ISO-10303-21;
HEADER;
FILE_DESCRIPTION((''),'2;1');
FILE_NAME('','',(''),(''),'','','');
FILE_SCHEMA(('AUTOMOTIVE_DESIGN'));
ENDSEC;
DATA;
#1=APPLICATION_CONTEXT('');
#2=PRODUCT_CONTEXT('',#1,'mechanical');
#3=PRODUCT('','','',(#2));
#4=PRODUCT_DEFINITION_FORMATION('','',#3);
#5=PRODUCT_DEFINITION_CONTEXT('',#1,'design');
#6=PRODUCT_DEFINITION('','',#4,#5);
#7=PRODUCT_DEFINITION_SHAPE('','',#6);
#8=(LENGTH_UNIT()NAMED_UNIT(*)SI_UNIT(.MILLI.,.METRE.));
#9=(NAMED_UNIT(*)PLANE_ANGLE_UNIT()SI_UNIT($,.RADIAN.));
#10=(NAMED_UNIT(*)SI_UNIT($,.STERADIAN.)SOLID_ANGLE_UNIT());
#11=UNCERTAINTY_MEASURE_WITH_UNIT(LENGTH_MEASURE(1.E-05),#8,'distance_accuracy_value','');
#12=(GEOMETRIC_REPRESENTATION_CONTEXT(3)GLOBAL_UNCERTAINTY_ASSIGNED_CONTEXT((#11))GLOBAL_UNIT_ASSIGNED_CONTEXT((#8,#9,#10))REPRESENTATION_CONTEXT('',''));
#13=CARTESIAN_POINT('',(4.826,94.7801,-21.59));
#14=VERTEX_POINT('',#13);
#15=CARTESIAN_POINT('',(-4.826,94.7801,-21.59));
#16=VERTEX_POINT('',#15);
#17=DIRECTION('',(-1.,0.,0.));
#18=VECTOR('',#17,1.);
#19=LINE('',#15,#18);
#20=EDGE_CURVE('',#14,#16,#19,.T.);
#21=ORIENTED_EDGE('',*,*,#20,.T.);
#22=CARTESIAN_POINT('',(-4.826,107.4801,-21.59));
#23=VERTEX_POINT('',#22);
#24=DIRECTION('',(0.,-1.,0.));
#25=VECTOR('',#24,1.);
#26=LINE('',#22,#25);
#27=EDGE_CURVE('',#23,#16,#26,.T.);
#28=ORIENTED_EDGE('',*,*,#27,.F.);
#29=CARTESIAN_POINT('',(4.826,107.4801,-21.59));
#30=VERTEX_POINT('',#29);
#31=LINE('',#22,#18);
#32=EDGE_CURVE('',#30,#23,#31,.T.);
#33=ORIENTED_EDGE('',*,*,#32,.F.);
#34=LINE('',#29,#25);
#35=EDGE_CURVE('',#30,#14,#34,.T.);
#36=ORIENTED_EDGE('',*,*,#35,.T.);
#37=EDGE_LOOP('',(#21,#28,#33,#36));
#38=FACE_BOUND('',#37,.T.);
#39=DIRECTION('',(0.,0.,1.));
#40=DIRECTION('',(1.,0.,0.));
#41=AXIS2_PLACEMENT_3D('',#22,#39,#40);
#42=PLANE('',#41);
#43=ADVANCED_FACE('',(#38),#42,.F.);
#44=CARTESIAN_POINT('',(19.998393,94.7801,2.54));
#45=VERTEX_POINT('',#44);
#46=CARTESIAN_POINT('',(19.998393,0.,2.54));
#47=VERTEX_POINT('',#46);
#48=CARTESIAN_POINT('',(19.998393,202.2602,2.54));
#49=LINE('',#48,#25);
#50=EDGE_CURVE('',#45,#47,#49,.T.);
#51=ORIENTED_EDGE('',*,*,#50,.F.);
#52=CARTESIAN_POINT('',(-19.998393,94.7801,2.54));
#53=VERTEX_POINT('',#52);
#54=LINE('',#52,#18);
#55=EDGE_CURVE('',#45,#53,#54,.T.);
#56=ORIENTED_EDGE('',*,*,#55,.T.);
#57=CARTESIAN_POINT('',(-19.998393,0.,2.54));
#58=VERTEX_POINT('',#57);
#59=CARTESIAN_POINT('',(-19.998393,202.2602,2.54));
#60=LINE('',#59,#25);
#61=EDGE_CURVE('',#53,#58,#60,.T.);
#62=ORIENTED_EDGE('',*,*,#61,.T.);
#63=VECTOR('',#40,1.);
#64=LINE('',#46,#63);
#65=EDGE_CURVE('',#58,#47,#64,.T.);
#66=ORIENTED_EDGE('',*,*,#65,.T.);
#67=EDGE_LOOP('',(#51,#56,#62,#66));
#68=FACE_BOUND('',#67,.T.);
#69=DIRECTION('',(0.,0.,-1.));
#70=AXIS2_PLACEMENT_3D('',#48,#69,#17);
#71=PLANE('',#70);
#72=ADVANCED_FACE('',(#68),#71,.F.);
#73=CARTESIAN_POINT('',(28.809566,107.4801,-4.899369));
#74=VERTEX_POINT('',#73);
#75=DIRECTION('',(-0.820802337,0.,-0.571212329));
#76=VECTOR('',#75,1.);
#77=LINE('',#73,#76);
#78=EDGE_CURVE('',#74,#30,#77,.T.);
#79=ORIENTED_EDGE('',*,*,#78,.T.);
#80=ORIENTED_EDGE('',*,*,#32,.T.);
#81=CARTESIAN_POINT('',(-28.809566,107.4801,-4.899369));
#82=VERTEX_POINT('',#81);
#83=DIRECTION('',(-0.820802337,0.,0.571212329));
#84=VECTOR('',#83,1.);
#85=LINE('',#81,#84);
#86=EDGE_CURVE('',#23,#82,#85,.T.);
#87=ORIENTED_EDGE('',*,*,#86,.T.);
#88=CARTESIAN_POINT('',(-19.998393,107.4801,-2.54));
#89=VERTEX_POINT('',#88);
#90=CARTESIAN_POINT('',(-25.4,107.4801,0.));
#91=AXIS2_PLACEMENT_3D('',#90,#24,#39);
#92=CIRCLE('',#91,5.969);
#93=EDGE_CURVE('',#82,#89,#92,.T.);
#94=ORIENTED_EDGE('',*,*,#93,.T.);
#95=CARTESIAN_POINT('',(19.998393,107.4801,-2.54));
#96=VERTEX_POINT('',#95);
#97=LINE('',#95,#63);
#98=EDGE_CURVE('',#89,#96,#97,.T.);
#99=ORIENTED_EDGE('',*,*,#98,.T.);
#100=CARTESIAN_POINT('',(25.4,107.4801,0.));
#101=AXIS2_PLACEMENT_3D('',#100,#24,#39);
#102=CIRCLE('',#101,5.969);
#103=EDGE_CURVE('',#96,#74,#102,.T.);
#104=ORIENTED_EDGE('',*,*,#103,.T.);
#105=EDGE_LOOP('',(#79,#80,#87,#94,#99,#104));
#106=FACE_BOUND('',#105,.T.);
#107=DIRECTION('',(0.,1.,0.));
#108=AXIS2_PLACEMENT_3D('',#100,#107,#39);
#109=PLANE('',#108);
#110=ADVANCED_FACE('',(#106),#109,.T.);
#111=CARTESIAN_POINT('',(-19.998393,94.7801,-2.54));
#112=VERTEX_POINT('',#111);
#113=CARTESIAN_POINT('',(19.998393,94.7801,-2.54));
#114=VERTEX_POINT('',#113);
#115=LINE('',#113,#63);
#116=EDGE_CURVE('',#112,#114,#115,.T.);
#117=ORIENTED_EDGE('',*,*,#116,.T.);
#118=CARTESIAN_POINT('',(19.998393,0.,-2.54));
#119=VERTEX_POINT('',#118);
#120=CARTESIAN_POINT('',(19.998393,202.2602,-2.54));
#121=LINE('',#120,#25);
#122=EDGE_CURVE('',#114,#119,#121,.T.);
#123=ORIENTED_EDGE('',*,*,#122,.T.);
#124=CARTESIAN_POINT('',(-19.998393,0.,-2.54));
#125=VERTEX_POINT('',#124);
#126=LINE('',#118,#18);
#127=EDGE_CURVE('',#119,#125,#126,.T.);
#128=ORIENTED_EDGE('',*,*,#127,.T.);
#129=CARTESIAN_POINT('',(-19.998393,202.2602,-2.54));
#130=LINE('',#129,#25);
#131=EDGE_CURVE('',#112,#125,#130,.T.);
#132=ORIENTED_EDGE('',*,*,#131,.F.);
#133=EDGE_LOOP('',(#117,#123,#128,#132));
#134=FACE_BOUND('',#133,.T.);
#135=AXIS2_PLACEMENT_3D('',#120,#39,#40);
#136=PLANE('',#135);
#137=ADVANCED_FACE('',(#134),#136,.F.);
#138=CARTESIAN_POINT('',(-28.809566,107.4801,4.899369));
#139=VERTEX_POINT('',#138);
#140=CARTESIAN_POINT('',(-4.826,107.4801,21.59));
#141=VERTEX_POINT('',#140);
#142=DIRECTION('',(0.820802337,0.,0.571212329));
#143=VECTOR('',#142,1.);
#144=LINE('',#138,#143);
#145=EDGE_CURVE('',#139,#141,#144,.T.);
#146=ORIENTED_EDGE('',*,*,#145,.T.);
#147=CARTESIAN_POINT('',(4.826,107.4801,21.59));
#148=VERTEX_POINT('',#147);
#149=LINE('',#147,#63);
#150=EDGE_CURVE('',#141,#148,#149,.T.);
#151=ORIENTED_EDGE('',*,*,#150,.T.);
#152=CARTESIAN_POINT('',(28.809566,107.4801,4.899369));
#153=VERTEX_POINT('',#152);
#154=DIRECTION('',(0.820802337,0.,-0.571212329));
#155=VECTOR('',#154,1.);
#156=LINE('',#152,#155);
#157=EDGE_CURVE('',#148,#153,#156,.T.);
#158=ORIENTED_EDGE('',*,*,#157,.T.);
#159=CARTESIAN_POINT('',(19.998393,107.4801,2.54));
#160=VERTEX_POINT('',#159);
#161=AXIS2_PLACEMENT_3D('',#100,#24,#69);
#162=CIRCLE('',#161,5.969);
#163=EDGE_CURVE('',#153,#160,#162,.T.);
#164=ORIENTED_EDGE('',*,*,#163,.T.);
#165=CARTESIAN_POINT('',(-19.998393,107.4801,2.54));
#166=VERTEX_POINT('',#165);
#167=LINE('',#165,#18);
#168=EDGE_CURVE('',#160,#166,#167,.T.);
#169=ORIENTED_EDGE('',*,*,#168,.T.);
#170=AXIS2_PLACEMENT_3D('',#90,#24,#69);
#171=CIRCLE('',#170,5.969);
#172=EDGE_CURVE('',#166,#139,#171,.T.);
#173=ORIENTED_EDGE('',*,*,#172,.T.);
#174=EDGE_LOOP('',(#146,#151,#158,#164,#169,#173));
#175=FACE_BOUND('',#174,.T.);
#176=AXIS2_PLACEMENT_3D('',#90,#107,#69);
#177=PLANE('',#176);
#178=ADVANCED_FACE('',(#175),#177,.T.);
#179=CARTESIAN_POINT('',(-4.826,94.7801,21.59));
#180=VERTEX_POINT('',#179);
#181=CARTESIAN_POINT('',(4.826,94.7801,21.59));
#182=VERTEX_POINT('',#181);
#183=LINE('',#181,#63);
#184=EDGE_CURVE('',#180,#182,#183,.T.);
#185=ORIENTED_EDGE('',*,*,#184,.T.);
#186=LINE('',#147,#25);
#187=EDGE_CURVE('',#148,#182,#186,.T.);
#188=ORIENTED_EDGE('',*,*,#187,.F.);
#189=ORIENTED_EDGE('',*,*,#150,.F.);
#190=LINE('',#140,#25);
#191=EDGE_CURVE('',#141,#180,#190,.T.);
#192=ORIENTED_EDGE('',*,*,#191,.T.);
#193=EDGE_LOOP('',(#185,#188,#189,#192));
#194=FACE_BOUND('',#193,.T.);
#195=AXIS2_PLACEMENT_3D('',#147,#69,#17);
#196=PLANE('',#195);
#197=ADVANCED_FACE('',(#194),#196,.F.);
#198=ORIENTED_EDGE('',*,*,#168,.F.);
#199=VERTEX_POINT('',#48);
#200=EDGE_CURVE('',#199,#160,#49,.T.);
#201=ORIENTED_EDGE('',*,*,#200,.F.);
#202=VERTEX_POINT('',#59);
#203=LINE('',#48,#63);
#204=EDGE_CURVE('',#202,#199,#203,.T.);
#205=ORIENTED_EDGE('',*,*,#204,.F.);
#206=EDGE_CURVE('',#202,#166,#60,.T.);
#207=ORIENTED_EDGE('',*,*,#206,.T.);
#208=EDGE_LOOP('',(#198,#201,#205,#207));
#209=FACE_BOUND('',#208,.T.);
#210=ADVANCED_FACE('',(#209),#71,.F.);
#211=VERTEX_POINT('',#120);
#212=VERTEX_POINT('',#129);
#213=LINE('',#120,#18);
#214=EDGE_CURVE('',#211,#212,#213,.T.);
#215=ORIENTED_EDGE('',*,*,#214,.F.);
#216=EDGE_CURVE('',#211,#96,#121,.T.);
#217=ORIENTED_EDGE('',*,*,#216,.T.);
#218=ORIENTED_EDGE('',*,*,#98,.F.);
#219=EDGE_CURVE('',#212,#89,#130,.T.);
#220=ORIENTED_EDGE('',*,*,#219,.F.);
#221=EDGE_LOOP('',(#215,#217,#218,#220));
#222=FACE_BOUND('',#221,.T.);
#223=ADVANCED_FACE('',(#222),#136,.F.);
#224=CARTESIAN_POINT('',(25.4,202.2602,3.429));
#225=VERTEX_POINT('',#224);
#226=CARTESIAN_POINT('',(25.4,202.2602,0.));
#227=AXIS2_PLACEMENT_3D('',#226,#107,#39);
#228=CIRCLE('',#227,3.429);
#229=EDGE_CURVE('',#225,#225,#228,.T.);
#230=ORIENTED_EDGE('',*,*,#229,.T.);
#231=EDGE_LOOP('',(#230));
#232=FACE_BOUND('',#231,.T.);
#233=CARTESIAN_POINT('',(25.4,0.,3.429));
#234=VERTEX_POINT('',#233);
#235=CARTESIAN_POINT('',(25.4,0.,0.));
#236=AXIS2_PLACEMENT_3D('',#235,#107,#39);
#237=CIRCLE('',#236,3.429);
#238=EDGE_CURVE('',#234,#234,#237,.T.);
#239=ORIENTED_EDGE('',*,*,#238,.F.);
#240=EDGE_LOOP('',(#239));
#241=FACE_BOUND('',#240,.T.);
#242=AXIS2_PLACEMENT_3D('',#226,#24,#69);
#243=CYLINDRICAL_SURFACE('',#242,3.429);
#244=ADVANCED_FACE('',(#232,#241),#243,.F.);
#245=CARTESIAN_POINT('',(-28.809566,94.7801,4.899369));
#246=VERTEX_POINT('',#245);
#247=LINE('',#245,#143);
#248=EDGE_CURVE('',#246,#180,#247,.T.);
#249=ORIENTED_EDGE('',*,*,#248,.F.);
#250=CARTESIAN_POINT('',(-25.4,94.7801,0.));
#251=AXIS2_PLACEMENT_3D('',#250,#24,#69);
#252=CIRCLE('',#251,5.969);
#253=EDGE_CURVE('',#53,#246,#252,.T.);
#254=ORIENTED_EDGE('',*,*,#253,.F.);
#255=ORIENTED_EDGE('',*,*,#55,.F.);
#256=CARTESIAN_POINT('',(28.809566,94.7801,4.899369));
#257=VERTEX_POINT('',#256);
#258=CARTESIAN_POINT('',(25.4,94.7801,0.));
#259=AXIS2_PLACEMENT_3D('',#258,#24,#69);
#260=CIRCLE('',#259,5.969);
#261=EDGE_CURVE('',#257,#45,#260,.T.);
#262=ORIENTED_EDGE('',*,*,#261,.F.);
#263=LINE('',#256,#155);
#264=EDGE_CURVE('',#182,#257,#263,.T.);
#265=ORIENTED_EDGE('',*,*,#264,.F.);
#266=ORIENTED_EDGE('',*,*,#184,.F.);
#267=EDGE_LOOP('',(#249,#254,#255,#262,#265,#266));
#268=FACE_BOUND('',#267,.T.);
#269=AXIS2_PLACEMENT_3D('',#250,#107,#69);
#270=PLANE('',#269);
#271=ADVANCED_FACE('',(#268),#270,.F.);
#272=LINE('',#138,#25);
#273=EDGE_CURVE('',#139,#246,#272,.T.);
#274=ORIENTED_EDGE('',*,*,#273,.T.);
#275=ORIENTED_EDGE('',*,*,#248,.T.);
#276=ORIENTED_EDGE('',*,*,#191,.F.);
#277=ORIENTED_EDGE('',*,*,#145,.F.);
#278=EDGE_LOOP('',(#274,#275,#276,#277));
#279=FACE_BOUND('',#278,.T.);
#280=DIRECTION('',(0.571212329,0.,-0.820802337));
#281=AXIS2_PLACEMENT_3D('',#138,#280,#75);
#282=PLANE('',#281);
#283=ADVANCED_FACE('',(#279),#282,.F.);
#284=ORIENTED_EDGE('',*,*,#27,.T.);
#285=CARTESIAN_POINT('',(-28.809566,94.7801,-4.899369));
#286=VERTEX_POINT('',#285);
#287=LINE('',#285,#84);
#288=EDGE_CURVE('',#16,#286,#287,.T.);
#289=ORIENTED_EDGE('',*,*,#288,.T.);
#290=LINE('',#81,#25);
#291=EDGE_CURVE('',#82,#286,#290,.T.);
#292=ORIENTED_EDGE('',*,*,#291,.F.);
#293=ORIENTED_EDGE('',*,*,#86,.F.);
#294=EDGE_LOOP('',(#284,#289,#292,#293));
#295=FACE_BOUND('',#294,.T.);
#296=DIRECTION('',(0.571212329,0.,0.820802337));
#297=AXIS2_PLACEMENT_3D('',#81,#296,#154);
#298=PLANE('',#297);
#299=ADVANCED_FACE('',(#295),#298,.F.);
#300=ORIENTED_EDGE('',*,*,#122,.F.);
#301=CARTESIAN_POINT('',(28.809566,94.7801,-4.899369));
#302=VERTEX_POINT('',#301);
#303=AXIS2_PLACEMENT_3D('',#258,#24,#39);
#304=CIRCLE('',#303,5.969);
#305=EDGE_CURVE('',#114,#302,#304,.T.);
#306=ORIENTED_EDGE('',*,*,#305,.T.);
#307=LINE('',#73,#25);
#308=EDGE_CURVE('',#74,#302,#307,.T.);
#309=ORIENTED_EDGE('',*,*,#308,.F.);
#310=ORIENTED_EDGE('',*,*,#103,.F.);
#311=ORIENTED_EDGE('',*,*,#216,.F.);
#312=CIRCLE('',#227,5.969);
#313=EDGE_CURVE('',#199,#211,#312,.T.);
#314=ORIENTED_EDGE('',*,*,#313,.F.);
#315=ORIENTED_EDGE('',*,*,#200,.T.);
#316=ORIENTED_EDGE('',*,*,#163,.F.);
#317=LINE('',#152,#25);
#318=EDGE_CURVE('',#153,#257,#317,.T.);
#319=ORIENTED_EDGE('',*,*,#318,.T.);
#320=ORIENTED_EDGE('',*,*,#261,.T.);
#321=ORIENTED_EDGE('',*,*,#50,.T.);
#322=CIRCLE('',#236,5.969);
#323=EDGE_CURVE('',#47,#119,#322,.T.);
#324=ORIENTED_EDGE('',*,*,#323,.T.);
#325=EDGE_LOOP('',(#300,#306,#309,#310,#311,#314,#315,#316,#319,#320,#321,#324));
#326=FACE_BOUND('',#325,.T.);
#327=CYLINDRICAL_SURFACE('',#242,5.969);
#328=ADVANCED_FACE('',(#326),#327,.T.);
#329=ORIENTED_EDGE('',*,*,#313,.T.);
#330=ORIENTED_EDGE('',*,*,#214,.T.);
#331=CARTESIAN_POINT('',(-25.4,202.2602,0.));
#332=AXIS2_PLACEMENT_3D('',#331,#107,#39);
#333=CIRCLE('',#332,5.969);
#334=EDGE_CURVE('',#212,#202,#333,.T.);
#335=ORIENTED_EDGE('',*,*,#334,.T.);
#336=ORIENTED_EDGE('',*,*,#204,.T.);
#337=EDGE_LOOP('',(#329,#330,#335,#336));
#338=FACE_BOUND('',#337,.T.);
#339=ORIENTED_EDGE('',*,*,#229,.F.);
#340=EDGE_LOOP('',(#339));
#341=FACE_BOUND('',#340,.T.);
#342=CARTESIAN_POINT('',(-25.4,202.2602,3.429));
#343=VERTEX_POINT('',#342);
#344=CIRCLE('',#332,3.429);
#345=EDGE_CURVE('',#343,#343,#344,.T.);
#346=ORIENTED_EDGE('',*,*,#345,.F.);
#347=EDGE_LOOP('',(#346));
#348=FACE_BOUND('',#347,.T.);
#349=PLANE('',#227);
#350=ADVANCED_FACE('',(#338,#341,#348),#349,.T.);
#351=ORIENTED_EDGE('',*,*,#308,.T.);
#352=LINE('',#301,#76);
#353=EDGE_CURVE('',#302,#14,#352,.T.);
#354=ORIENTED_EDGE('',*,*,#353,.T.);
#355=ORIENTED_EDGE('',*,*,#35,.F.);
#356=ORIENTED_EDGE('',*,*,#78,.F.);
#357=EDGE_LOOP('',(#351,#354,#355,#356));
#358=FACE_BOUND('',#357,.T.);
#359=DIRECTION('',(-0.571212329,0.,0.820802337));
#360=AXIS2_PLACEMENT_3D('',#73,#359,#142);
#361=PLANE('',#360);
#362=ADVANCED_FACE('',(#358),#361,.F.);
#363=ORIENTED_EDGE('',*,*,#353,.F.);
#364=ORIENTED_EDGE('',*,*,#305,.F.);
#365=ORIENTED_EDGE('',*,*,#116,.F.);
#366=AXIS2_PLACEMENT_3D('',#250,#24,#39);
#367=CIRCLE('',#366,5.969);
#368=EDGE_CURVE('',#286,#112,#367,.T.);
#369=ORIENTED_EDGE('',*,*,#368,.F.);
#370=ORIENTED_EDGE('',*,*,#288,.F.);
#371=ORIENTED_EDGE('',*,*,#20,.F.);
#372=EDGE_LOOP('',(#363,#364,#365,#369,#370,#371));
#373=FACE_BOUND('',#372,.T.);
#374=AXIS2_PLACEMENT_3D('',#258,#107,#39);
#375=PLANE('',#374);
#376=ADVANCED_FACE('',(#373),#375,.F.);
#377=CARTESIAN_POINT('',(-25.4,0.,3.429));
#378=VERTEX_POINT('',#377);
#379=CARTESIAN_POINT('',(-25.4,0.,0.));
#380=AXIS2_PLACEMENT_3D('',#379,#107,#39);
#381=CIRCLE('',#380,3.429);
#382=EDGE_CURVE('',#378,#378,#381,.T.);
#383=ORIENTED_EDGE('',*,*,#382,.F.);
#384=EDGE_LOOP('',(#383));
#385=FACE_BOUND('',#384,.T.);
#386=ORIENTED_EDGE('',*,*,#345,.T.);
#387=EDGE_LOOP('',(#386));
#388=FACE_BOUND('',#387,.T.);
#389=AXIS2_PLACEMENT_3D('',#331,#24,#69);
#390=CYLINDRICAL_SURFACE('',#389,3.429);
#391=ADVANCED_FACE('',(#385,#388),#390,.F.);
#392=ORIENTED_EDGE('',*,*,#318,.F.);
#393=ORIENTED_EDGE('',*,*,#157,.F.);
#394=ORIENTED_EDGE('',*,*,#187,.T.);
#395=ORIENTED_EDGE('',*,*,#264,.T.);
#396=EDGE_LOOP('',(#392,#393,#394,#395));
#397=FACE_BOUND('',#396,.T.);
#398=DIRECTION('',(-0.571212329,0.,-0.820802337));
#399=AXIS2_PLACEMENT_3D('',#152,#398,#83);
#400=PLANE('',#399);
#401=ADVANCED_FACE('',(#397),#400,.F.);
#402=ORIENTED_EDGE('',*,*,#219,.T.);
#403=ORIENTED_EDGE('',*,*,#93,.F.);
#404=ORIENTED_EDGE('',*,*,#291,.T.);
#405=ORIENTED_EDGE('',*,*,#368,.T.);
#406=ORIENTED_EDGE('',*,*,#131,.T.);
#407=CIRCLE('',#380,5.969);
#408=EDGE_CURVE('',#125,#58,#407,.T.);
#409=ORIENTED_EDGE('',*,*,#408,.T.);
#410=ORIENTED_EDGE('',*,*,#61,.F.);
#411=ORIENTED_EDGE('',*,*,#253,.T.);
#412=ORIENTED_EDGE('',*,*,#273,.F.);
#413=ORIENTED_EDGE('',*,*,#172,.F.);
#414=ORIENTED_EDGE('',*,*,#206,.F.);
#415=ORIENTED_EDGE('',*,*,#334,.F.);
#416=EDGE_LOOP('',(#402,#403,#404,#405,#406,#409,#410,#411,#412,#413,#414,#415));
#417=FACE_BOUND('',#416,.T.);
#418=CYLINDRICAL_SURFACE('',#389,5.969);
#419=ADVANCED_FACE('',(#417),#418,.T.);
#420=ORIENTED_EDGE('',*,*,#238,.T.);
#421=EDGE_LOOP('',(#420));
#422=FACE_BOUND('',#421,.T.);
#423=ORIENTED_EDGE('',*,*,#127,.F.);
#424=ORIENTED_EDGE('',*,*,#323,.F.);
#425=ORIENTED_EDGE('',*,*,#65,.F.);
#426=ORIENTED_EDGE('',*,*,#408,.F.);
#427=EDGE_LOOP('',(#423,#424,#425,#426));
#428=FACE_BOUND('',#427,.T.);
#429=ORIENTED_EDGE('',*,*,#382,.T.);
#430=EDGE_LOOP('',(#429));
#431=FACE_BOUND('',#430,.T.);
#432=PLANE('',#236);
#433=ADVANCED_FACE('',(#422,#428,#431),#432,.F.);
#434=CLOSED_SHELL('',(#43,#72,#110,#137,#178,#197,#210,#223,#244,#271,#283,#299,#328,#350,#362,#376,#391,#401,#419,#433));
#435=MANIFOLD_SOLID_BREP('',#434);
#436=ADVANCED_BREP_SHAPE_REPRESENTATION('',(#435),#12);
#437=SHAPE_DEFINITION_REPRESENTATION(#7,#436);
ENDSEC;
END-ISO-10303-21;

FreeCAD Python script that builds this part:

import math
import FreeCAD as App
import Part
import Sketcher

V = App.Vector
Q = App.Units.Quantity

doc = App.newDocument("Part")
params = doc.addObject("Spreadsheet::Sheet", "Params")
for row, (alias, value) in enumerate([
    ("sketch1_diameter", "0.27 in"),
    ("sketch1_radius", "0.235 in"),
    ("pad1_length", "7.963 in"),
    ("sketch2_radius", "0.235 in"),
    ("sketch2_width", "0.38 in"),
    ("pad2_length", "0.5 in"),
], start=1):
    params.set(f"A{row}", alias)
    params.set(f"B{row}", "=" + value)
    params.setAlias(f"B{row}", alias)

body = doc.addObject("PartDesign::Body", "Body")

sketch1 = body.newObject("Sketcher::SketchObject", "Sketch")
sketch1.AttachmentSupport = (doc.getObject("XZ_Plane"), [""])
sketch1.MapMode = "FlatFace"
sketch1.addGeometry([
    Part.LineSegment(V(19.998393, -2.54, 0), V(-19.998393, -2.54, 0)),
    Part.ArcOfCircle(Part.Circle(V(-25.4, 0, 0), V(0, 0, 1), 5.969), math.radians(25.184337), math.radians(334.815663)),
    Part.LineSegment(V(-19.998393, 2.54, 0), V(19.998393, 2.54, 0)),
    Part.ArcOfCircle(Part.Circle(V(25.4, 0, 0), V(0, 0, 1), 5.969), math.radians(-154.815663), math.radians(154.815663)),
    Part.Circle(V(-25.4, 0, 0), V(0, 0, 1), 3.429),
    Part.Circle(V(25.4, 0, 0), V(0, 0, 1), 3.429),
], False)
sketch1.addConstraint([
    Sketcher.Constraint("Coincident", 0, 2, 1, 2),
    Sketcher.Constraint("Coincident", 1, 1, 2, 1),
    Sketcher.Constraint("Coincident", 2, 2, 3, 2),
    Sketcher.Constraint("Coincident", 3, 1, 0, 1),
    Sketcher.Constraint("Horizontal", 0),
    Sketcher.Constraint("Horizontal", 2),
    Sketcher.Constraint("Coincident", 4, 3, 1, 3),
    Sketcher.Constraint("Coincident", 5, 3, 3, 3),
    Sketcher.Constraint("Equal", 1, 3),
    Sketcher.Constraint("Equal", 4, 5),
    Sketcher.Constraint("Symmetric", 1, 3, 3, 3, -1, 1),
    Sketcher.Constraint("Symmetric", 0, 2, 1, 1, -1),
    Sketcher.Constraint("Diameter", 4, Q("0.27 in")),
    Sketcher.Constraint("DistanceX", 1, 3, -1, 1, Q("1 in")),
    Sketcher.Constraint("Radius", 1, Q("0.235 in")),
    Sketcher.Constraint("DistanceY", 0, 2, -1, 1, Q("0.1 in")),
])
sketch1.setExpression("Constraints[12]", "Params.sketch1_diameter")
sketch1.setExpression("Constraints[14]", "Params.sketch1_radius")
pad1 = body.newObject("PartDesign::Pad", "Pad")
pad1.Profile = sketch1
pad1.setExpression("Length", "Params.pad1_length")
pad1.Reversed = True

sketch2 = body.newObject("Sketcher::SketchObject", "Sketch001")
sketch2.AttachmentSupport = (doc.getObject("XZ_Plane"), [""])
sketch2.MapMode = "FlatFace"
sketch2.AttachmentOffset = App.Placement(V(0, 0, -3.9815 * 25.4), App.Rotation())
sketch2.addGeometry([
    Part.LineSegment(V(-4.826, -21.59, 0), V(-28.809566, -4.899369, 0)),
    Part.ArcOfCircle(Part.Circle(V(-25.4, 0, 0), V(0, 0, 1), 5.969), math.radians(-124.834808), math.radians(-25.184337)),
    Part.LineSegment(V(-19.998393, -2.54, 0), V(19.998393, -2.54, 0)),
    Part.ArcOfCircle(Part.Circle(V(25.4, 0, 0), V(0, 0, 1), 5.969), math.radians(-154.815663), math.radians(-55.165192)),
    Part.LineSegment(V(28.809566, -4.899369, 0), V(4.826, -21.59, 0)),
    Part.LineSegment(V(4.826, -21.59, 0), V(-4.826, -21.59, 0)),
], False)
sketch2.addConstraint([
    Sketcher.Constraint("Tangent", 0, 2, 1, 1),
    Sketcher.Constraint("Coincident", 1, 2, 2, 1),
    Sketcher.Constraint("Coincident", 2, 2, 3, 1),
    Sketcher.Constraint("Tangent", 3, 2, 4, 1),
    Sketcher.Constraint("Coincident", 4, 2, 5, 1),
    Sketcher.Constraint("Coincident", 5, 2, 0, 1),
    Sketcher.Constraint("Horizontal", 2),
    Sketcher.Constraint("Horizontal", 5),
    Sketcher.Constraint("Equal", 1, 3),
    Sketcher.Constraint("Symmetric", 1, 3, 3, 3, -1, 1),
    Sketcher.Constraint("Symmetric", 0, 2, 3, 2, -2),
    Sketcher.Constraint("DistanceX", 1, 3, -1, 1, Q("1 in")),
    Sketcher.Constraint("Radius", 1, Q("0.235 in")),
    Sketcher.Constraint("DistanceX", 5, 2, 5, 1, Q("0.38 in")),
    Sketcher.Constraint("DistanceY", 1, 2, -1, 1, Q("0.1 in")),
    Sketcher.Constraint("DistanceY", 4, 2, -1, 1, Q("0.85 in")),
])
sketch2.setExpression("Constraints[12]", "Params.sketch2_radius")
sketch2.setExpression("Constraints[13]", "Params.sketch2_width")
pad2 = body.newObject("PartDesign::Pad", "Pad001")
pad2.Profile = sketch2
pad2.setExpression("Length", "Params.pad2_length")
pad2.Midplane = True
doc.recompute()

polarpattern = body.newObject("PartDesign::PolarPattern", "PolarPattern")
polarpattern.Originals = [pad2]
polarpattern.Axis = (doc.getObject("Y_Axis"), [""])
polarpattern.Angle = 360
polarpattern.Occurrences = 2
body.Tip = polarpattern

doc.recompute()
